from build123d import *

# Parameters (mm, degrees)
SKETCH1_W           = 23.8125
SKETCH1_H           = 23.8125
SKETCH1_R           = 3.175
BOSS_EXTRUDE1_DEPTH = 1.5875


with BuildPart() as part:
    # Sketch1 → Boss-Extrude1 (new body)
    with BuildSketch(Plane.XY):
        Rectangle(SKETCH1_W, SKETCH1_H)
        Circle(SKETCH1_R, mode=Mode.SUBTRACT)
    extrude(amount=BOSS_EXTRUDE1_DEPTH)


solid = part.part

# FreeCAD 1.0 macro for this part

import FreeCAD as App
import Part
import Sketcher
Q = App.Units.Quantity


def add_polygon(sketch, points):
    """Adds a closed chain of lines whose ends are joined by coincident constraints."""
    first, n = sketch.GeometryCount, len(points)
    for a, b in zip(points, points[1:] + points[:1]):
        sketch.addGeometry(Part.LineSegment(App.Vector(*a, 0), App.Vector(*b, 0)), False)
    for i in range(n):
        sketch.addConstraint(Sketcher.Constraint("Coincident", first + i, 2, first + (i + 1) % n, 1))

doc = App.newDocument("Part")
body = doc.addObject("PartDesign::Body", "Body")

sketch1 = body.newObject("Sketcher::SketchObject", "Sketch")
sketch1.AttachmentSupport = (doc.getObject("XY_Plane"), [""])
sketch1.MapMode = "FlatFace"
add_polygon(sketch1, [(-11.90625, 11.90625), (-11.90625, -11.90625), (11.90625, -11.90625), (11.90625, 11.90625)])
sketch1.addGeometry(Part.Circle(App.Vector(0, 0, 0), App.Vector(0, 0, 1), 3.175), False)
sketch1.addConstraint([
    Sketcher.Constraint("Vertical", 0),
    Sketcher.Constraint("Horizontal", 1),
    Sketcher.Constraint("Vertical", 2),
    Sketcher.Constraint("Horizontal", 3),
    Sketcher.Constraint("Coincident", 4, 3, -1, 1),
    Sketcher.Constraint("Symmetric", 0, 2, 2, 2, -1, 1),
    Sketcher.Constraint("Equal", 3, 0),
    Sketcher.Constraint("Diameter", 4, Q("0.25 in")),
    Sketcher.Constraint("DistanceX", 1, 1, 1, 2, Q("0.9375 in")),
])
pad1 = body.newObject("PartDesign::Pad", "Pad")
pad1.Profile = sketch1
pad1.Length = Q("0.0625 in")

doc.recompute()
